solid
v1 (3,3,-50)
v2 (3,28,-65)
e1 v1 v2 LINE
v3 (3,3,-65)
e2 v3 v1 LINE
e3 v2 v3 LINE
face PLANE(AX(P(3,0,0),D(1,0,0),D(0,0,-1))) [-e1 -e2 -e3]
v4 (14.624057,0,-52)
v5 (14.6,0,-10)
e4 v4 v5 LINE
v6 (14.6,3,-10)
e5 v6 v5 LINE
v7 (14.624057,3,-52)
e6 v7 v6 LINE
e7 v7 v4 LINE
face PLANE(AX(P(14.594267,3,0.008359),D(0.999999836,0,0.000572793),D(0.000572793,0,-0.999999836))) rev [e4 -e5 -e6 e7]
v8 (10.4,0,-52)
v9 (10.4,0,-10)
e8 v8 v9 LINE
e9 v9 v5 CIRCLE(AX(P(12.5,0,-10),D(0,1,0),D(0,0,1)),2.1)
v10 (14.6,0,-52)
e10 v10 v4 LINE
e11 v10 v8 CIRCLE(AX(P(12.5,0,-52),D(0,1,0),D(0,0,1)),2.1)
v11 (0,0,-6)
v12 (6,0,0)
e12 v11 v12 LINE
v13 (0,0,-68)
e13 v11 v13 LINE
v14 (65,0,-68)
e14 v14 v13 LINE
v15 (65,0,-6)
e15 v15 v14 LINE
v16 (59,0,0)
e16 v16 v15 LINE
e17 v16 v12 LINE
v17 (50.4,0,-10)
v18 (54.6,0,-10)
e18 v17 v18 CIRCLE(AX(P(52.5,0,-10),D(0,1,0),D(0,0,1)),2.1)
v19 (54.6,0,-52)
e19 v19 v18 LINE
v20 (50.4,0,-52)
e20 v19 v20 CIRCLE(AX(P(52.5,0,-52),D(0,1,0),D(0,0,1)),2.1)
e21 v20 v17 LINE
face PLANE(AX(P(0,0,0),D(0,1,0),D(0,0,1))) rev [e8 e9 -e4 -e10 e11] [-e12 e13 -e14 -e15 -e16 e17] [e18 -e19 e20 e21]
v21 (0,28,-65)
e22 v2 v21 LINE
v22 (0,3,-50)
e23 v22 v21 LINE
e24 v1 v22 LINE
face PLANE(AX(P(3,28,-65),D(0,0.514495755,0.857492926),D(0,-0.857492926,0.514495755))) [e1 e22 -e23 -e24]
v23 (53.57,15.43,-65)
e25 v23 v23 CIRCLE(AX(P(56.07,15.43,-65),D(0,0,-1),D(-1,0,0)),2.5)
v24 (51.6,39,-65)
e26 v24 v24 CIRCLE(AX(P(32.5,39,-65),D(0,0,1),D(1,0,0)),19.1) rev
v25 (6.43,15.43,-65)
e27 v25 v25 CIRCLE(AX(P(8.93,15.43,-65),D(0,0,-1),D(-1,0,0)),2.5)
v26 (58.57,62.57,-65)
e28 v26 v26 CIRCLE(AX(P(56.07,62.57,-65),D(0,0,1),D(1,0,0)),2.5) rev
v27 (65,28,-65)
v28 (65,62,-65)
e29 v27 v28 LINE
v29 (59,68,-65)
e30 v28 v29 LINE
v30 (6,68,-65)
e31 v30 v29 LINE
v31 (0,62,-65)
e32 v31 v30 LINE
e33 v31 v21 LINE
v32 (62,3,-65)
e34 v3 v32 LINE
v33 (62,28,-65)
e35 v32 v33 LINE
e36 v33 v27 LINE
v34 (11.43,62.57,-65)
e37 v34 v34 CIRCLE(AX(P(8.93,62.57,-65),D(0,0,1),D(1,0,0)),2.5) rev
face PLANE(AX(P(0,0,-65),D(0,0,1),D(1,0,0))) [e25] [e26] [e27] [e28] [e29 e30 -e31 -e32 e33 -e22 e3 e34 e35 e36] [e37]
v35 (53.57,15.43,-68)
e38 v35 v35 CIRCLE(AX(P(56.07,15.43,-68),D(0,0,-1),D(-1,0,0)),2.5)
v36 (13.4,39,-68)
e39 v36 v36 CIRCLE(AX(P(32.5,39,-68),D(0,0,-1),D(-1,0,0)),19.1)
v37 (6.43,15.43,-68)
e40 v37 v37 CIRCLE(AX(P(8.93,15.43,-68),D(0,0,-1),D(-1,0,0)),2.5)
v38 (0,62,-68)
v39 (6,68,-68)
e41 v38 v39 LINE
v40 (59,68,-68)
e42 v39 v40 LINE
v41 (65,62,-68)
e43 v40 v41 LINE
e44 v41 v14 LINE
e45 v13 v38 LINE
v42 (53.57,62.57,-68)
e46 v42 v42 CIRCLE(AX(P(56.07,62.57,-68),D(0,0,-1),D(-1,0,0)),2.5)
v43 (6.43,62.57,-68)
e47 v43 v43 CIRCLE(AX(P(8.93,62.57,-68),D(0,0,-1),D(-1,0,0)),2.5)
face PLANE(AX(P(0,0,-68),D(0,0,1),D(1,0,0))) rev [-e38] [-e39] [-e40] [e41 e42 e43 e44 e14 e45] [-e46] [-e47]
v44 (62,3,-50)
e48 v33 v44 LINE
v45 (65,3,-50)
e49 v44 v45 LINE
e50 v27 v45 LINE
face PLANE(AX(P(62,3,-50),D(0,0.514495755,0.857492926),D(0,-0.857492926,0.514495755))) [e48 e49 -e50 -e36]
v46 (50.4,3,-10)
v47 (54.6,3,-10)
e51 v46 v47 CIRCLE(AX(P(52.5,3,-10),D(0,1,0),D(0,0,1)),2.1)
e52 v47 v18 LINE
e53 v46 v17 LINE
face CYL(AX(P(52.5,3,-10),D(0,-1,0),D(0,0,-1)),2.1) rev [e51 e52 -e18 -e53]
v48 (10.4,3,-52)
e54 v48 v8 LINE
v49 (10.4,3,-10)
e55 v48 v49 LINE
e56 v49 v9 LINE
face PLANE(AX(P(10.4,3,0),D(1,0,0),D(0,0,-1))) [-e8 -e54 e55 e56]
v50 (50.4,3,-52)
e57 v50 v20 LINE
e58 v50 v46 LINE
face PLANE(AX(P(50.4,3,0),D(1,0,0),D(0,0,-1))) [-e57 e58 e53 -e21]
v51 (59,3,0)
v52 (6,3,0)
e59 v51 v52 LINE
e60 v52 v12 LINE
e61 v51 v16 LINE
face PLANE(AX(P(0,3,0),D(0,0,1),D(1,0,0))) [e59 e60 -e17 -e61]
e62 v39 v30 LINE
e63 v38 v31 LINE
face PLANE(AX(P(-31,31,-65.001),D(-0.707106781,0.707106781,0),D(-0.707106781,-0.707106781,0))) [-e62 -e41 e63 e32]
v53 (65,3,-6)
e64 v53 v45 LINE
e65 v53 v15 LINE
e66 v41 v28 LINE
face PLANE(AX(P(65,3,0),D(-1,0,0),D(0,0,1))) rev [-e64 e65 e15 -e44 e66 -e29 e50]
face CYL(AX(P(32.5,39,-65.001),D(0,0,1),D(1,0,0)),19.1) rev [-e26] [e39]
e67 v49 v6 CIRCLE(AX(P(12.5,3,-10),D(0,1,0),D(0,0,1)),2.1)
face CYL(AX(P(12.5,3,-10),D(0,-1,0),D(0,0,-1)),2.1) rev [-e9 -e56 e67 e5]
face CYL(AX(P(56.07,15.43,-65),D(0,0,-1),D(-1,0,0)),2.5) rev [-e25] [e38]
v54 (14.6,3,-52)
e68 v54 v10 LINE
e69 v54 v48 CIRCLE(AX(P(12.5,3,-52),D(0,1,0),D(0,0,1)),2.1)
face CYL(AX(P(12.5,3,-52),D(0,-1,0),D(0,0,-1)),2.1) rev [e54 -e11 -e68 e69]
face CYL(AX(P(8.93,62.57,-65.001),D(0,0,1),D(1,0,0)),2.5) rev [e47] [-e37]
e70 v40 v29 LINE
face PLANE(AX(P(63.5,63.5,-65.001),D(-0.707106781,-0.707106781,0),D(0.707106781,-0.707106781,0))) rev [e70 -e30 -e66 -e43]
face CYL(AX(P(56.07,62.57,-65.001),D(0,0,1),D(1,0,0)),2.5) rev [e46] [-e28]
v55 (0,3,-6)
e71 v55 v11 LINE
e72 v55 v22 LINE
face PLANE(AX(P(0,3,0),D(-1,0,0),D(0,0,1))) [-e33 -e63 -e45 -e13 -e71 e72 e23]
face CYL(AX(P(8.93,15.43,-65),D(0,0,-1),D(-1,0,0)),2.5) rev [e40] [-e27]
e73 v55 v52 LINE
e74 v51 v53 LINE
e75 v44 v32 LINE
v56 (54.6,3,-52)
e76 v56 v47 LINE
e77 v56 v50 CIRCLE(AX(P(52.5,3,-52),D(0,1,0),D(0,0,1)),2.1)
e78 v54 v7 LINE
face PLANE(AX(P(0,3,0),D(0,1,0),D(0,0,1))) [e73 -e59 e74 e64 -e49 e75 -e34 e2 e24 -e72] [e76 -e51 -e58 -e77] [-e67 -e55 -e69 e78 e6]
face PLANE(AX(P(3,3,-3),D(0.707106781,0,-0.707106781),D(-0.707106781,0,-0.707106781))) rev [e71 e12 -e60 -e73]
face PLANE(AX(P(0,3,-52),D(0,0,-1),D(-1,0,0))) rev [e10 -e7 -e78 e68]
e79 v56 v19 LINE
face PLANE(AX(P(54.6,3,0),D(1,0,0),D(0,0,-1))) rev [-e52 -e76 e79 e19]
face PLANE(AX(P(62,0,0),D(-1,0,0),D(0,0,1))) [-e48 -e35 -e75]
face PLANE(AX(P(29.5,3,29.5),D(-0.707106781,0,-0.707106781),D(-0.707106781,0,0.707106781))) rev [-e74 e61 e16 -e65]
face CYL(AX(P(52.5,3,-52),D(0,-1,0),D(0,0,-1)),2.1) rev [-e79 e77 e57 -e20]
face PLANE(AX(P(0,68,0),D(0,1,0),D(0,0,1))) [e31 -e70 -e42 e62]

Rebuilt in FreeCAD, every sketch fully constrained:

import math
import FreeCAD as App
import Part
import Sketcher
from FreeCAD import Vector
Q = App.Units.Quantity

doc = App.newDocument("Part")
body = doc.addObject("PartDesign::Body", "Body")

# Sketch on XZ plane
sketch1 = doc.addObject("Sketcher::SketchObject", "Sketch")
body.addObject(sketch1)
sketch1.AttachmentSupport = (doc.XZ_Plane, [""])
sketch1.MapMode = "FlatFace"
sketch1.addGeometry(Part.LineSegment(Vector(59, 0, 0), Vector(65, -6, 0)), False)
sketch1.addGeometry(Part.LineSegment(Vector(65, -6, 0), Vector(65, -65, 0)), False)
sketch1.addGeometry(Part.LineSegment(Vector(65, -65, 0), Vector(0, -65, 0)), False)
sketch1.addGeometry(Part.LineSegment(Vector(0, -65, 0), Vector(0, -6, 0)), False)
sketch1.addGeometry(Part.LineSegment(Vector(0, -6, 0), Vector(6, 0, 0)), False)
sketch1.addGeometry(Part.LineSegment(Vector(6, 0, 0), Vector(59, 0, 0)), False)
sketch1.addGeometry(Part.ArcOfCircle(Part.Circle(Vector(12.5, -52, 0), Vector(0, 0, 1), 2.1), math.radians(180), math.radians(360)), False)
sketch1.addGeometry(Part.LineSegment(Vector(14.6, -52, 0), Vector(14.624, -52, 0)), False)
sketch1.addGeometry(Part.LineSegment(Vector(14.624, -52, 0), Vector(14.6, -10, 0)), False)
sketch1.addGeometry(Part.ArcOfCircle(Part.Circle(Vector(12.5, -10, 0), Vector(0, 0, 1), 2.1), math.radians(0), math.radians(180)), False)
sketch1.addGeometry(Part.LineSegment(Vector(10.4, -10, 0), Vector(10.4, -52, 0)), False)
sketch1.addGeometry(Part.LineSegment(Vector(54.6, -52, 0), Vector(54.6, -10, 0)), False)
sketch1.addGeometry(Part.ArcOfCircle(Part.Circle(Vector(52.5, -10, 0), Vector(0, 0, 1), 2.1), math.radians(0), math.radians(90)), False)
sketch1.addGeometry(Part.ArcOfCircle(Part.Circle(Vector(52.5, -10, 0), Vector(0, 0, 1), 2.1), math.radians(90), math.radians(180)), False)
sketch1.addGeometry(Part.LineSegment(Vector(50.4, -10, 0), Vector(50.4, -52, 0)), False)
sketch1.addGeometry(Part.ArcOfCircle(Part.Circle(Vector(52.5, -52, 0), Vector(0, 0, 1), 2.1), math.radians(180), math.radians(360)), False)
sketch1.addConstraint(Sketcher.Constraint("Coincident", 0, 2, 1, 1))
sketch1.addConstraint(Sketcher.Constraint("Coincident", 1, 2, 2, 1))
sketch1.addConstraint(Sketcher.Constraint("Coincident", 2, 2, 3, 1))
sketch1.addConstraint(Sketcher.Constraint("Coincident", 3, 2, 4, 1))
sketch1.addConstraint(Sketcher.Constraint("Coincident", 4, 2, 5, 1))
sketch1.addConstraint(Sketcher.Constraint("Coincident", 5, 2, 0, 1))
sketch1.addConstraint(Sketcher.Constraint("Coincident", 6, 2, 7, 1))
sketch1.addConstraint(Sketcher.Constraint("Coincident", 7, 2, 8, 1))
sketch1.addConstraint(Sketcher.Constraint("Coincident", 8, 2, 9, 1))
sketch1.addConstraint(Sketcher.Constraint("Tangent", 9, 2, 10, 1))
sketch1.addConstraint(Sketcher.Constraint("Tangent", 10, 2, 6, 1))
sketch1.addConstraint(Sketcher.Constraint("Tangent", 11, 2, 12, 1))
sketch1.addConstraint(Sketcher.Constraint("Tangent", 12, 2, 13, 1))
sketch1.addConstraint(Sketcher.Constraint("Tangent", 13, 2, 14, 1))
sketch1.addConstraint(Sketcher.Constraint("Tangent", 14, 2, 15, 1))
sketch1.addConstraint(Sketcher.Constraint("Tangent", 15, 2, 11, 1))
sketch1.addConstraint(Sketcher.Constraint("Vertical", 1))
sketch1.addConstraint(Sketcher.Constraint("Horizontal", 2))
sketch1.addConstraint(Sketcher.Constraint("Vertical", 3))
sketch1.addConstraint(Sketcher.Constraint("Horizontal", 5))
sketch1.addConstraint(Sketcher.Constraint("Horizontal", 7))
sketch1.addConstraint(Sketcher.Constraint("Vertical", 10))
sketch1.addConstraint(Sketcher.Constraint("Vertical", 11))
sketch1.addConstraint(Sketcher.Constraint("Vertical", 14))
sketch1.addConstraint(Sketcher.Constraint("Equal", 6, 9))
sketch1.addConstraint(Sketcher.Constraint("Equal", 9, 12))
sketch1.addConstraint(Sketcher.Constraint("Equal", 12, 13))
sketch1.addConstraint(Sketcher.Constraint("PointOnObject", 2, 2, -2))
sketch1.addConstraint(Sketcher.Constraint("PointOnObject", 4, 2, -1))
sketch1.addConstraint(Sketcher.Constraint("Perpendicular", 0, 4))
sketch1.addConstraint(Sketcher.Constraint("Horizontal", 9, 3, 12, 3))
sketch1.addConstraint(Sketcher.Constraint("Horizontal", 6, 3, 15, 3))
sketch1.addConstraint(Sketcher.Constraint("Horizontal", 0, 2, 3, 2))
sketch1.addConstraint(Sketcher.Constraint("Horizontal", 15, 3, 6, 2))
sketch1.addConstraint(Sketcher.Constraint("Horizontal", 13, 3, 8, 2))
sketch1.addConstraint(Sketcher.Constraint("Vertical", 15, 3, 12, 2))
sketch1.addConstraint(Sketcher.Constraint("Equal", 0, 4))
sketch1.addConstraint(Sketcher.Constraint("Radius", 6, Q("2.1 mm")))
sketch1.addConstraint(Sketcher.Constraint("DistanceX", 2, 2, 2, 1, Q("65 mm")))
sketch1.addConstraint(Sketcher.Constraint("DistanceX", 5, 1, 5, 2, Q("53 mm")))
sketch1.addConstraint(Sketcher.Constraint("DistanceY", 1, 2, 1, 1, Q("59 mm")))
sketch1.addConstraint(Sketcher.Constraint("DistanceY", 10, 2, 10, 1, Q("42 mm")))
sketch1.addConstraint(Sketcher.Constraint("DistanceY", 6, 3, -1, 1, Q("52 mm")))
sketch1.addConstraint(Sketcher.Constraint("DistanceX", 9, 3, 12, 3, Q("40 mm")))
sketch1.addConstraint(Sketcher.Constraint("DistanceX", -1, 1, 6, 3, Q("12.5 mm")))
sketch1.addConstraint(Sketcher.Constraint("DistanceX", 7, 1, 7, 2, Q("0.024057 mm")))
pad1 = doc.addObject("PartDesign::Pad", "Pad")
body.addObject(pad1)
pad1.Profile = sketch1
pad1.Length = 3
pad1.Reversed = True

# Sketch on XZ plane
sketch2 = doc.addObject("Sketcher::SketchObject", "Sketch001")
body.addObject(sketch2)
sketch2.AttachmentSupport = (doc.XZ_Plane, [""])
sketch2.MapMode = "FlatFace"
sketch2.AttachmentOffset = App.Placement(Vector(0, 0, -3), App.Rotation())
sketch2.addGeometry(Part.LineSegment(Vector(0, -65, 0), Vector(0, -62, 0)), False)
sketch2.addGeometry(Part.LineSegment(Vector(0, -62, 0), Vector(65, -62, 0)), False)
sketch2.addGeometry(Part.LineSegment(Vector(65, -62, 0), Vector(65, -65, 0)), False)
sketch2.addGeometry(Part.LineSegment(Vector(65, -65, 0), Vector(0, -65, 0)), False)
sketch2.addConstraint(Sketcher.Constraint("Coincident", 0, 2, 1, 1))
sketch2.addConstraint(Sketcher.Constraint("Coincident", 1, 2, 2, 1))
sketch2.addConstraint(Sketcher.Constraint("Coincident", 2, 2, 3, 1))
sketch2.addConstraint(Sketcher.Constraint("Coincident", 3, 2, 0, 1))
sketch2.addConstraint(Sketcher.Constraint("Vertical", 0))
sketch2.addConstraint(Sketcher.Constraint("Horizontal", 1))
sketch2.addConstraint(Sketcher.Constraint("Vertical", 2))
sketch2.addConstraint(Sketcher.Constraint("Horizontal", 3))
sketch2.addConstraint(Sketcher.Constraint("PointOnObject", 0, 2, -2))
sketch2.addConstraint(Sketcher.Constraint("DistanceX", 1, 1, 1, 2, Q("65 mm")))
sketch2.addConstraint(Sketcher.Constraint("DistanceY", 0, 1, 0, 2, Q("3 mm")))
sketch2.addConstraint(Sketcher.Constraint("DistanceY", 0, 2, -1, 1, Q("62 mm")))
pad2 = doc.addObject("PartDesign::Pad", "Pad001")
body.addObject(pad2)
pad2.Profile = sketch2
pad2.Length = 65
pad2.Reversed = True

# Sketch on XY plane
sketch3 = doc.addObject("Sketcher::SketchObject", "Sketch002")
body.addObject(sketch3)
sketch3.AttachmentSupport = (doc.XY_Plane, [""])
sketch3.MapMode = "FlatFace"
sketch3.AttachmentOffset = App.Placement(Vector(0, 0, -62), App.Rotation())
sketch3.addGeometry(Part.LineSegment(Vector(6, 68, 0), Vector(0, 68, 0)), False)
sketch3.addGeometry(Part.LineSegment(Vector(0, 68, 0), Vector(0, 62, 0)), False)
sketch3.addGeometry(Part.LineSegment(Vector(0, 62, 0), Vector(6, 68, 0)), False)
sketch3.addConstraint(Sketcher.Constraint("Coincident", 0, 2, 1, 1))
sketch3.addConstraint(Sketcher.Constraint("Coincident", 1, 2, 2, 1))
sketch3.addConstraint(Sketcher.Constraint("Coincident", 2, 2, 0, 1))
sketch3.addConstraint(Sketcher.Constraint("Horizontal", 0))
sketch3.addConstraint(Sketcher.Constraint("Vertical", 1))
sketch3.addConstraint(Sketcher.Constraint("PointOnObject", 0, 2, -2))
sketch3.addConstraint(Sketcher.Constraint("Equal", 0, 1))
sketch3.addConstraint(Sketcher.Constraint("DistanceX", 0, 2, 0, 1, Q("6 mm")))
sketch3.addConstraint(Sketcher.Constraint("DistanceY", -1, 1, 0, 2, Q("68 mm")))
pocket1 = doc.addObject("PartDesign::Pocket", "Pocket")
body.addObject(pocket1)
pocket1.Profile = sketch3
pocket1.Type = "UpToFirst"

# Sketch on XY plane
sketch4 = doc.addObject("Sketcher::SketchObject", "Sketch003")
body.addObject(sketch4)
sketch4.AttachmentSupport = (doc.XY_Plane, [""])
sketch4.MapMode = "FlatFace"
sketch4.AttachmentOffset = App.Placement(Vector(0, 0, -62), App.Rotation())
sketch4.addGeometry(Part.Circle(Vector(8.9, 15.4, 0), Vector(0, 0, 1), 2.5), False)
sketch4.addConstraint(Sketcher.Constraint("Diameter", 0, Q("5 mm")))
sketch4.addConstraint(Sketcher.Constraint("DistanceX", -1, 1, 0, 3, Q("8.93 mm")))
sketch4.addConstraint(Sketcher.Constraint("DistanceY", -1, 1, 0, 3, Q("15.43 mm")))
pocket2 = doc.addObject("PartDesign::Pocket", "Pocket001")
body.addObject(pocket2)
pocket2.Profile = sketch4
pocket2.Type = "UpToFirst"

# Sketch on XY plane
sketch5 = doc.addObject("Sketcher::SketchObject", "Sketch004")
body.addObject(sketch5)
sketch5.AttachmentSupport = (doc.XY_Plane, [""])
sketch5.MapMode = "FlatFace"
sketch5.AttachmentOffset = App.Placement(Vector(0, 0, -62), App.Rotation())
sketch5.addGeometry(Part.Circle(Vector(56.1, 15.4, 0), Vector(0, 0, 1), 2.5), False)
sketch5.addConstraint(Sketcher.Constraint("Diameter", 0, Q("5 mm")))
sketch5.addConstraint(Sketcher.Constraint("DistanceX", -1, 1, 0, 3, Q("56.07 mm")))
sketch5.addConstraint(Sketcher.Constraint("DistanceY", -1, 1, 0, 3, Q("15.43 mm")))
pocket3 = doc.addObject("PartDesign::Pocket", "Pocket002")
body.addObject(pocket3)
pocket3.Profile = sketch5
pocket3.Type = "UpToFirst"

# Sketch on XY plane
sketch6 = doc.addObject("Sketcher::SketchObject", "Sketch005")
body.addObject(sketch6)
sketch6.AttachmentSupport = (doc.XY_Plane, [""])
sketch6.MapMode = "FlatFace"
sketch6.AttachmentOffset = App.Placement(Vector(0, 0, -62), App.Rotation())
sketch6.addGeometry(Part.Circle(Vector(56.1, 62.6, 0), Vector(0, 0, 1), 2.5), False)
sketch6.addConstraint(Sketcher.Constraint("Diameter", 0, Q("5 mm")))
sketch6.addConstraint(Sketcher.Constraint("DistanceX", -1, 1, 0, 3, Q("56.07 mm")))
sketch6.addConstraint(Sketcher.Constraint("DistanceY", -1, 1, 0, 3, Q("62.57 mm")))
pocket4 = doc.addObject("PartDesign::Pocket", "Pocket003")
body.addObject(pocket4)
pocket4.Profile = sketch6
pocket4.Type = "UpToFirst"

# Sketch on XY plane
sketch7 = doc.addObject("Sketcher::SketchObject", "Sketch006")
body.addObject(sketch7)
sketch7.AttachmentSupport = (doc.XY_Plane, [""])
sketch7.MapMode = "FlatFace"
sketch7.AttachmentOffset = App.Placement(Vector(0, 0, -62), App.Rotation())
sketch7.addGeometry(Part.Circle(Vector(32, 39, 0), Vector(0, 0, 1), 19), False)
sketch7.addConstraint(Sketcher.Constraint("Diameter", 0, Q("38.2 mm")))
sketch7.addConstraint(Sketcher.Constraint("DistanceY", -1, 1, 0, 3, Q("39 mm")))
sketch7.addConstraint(Sketcher.Constraint("DistanceX", -1, 1, 0, 3, Q("32.5 mm")))
pocket5 = doc.addObject("PartDesign::Pocket", "Pocket004")
body.addObject(pocket5)
pocket5.Profile = sketch7
pocket5.Type = "UpToFirst"

# Sketch on XY plane
sketch8 = doc.addObject("Sketcher::SketchObject", "Sketch007")
body.addObject(sketch8)
sketch8.AttachmentSupport = (doc.XY_Plane, [""])
sketch8.MapMode = "FlatFace"
sketch8.AttachmentOffset = App.Placement(Vector(0, 0, -62), App.Rotation())
sketch8.addGeometry(Part.LineSegment(Vector(65, 68, 0), Vector(59, 68, 0)), False)
sketch8.addGeometry(Part.LineSegment(Vector(59, 68, 0), Vector(65, 62, 0)), False)
sketch8.addGeometry(Part.LineSegment(Vector(65, 62, 0), Vector(65, 68, 0)), False)
sketch8.addConstraint(Sketcher.Constraint("Coincident", 0, 2, 1, 1))
sketch8.addConstraint(Sketcher.Constraint("Coincident", 1, 2, 2, 1))
sketch8.addConstraint(Sketcher.Constraint("Coincident", 2, 2, 0, 1))
sketch8.addConstraint(Sketcher.Constraint("Horizontal", 0))
sketch8.addConstraint(Sketcher.Constraint("Vertical", 2))
sketch8.addConstraint(Sketcher.Constraint("Equal", 0, 2))
sketch8.addConstraint(Sketcher.Constraint("DistanceX", 0, 2, 0, 1, Q("6 mm")))
sketch8.addConstraint(Sketcher.Constraint("DistanceX", -1, 1, 0, 2, Q("59 mm")))
sketch8.addConstraint(Sketcher.Constraint("DistanceY", -1, 1, 0, 2, Q("68 mm")))
pocket6 = doc.addObject("PartDesign::Pocket", "Pocket005")
body.addObject(pocket6)
pocket6.Profile = sketch8
pocket6.Type = "UpToFirst"

# Sketch on XY plane
sketch9 = doc.addObject("Sketcher::SketchObject", "Sketch008")
body.addObject(sketch9)
sketch9.AttachmentSupport = (doc.XY_Plane, [""])
sketch9.MapMode = "FlatFace"
sketch9.AttachmentOffset = App.Placement(Vector(0, 0, -62), App.Rotation())
sketch9.addGeometry(Part.ArcOfCircle(Part.Circle(Vector(8.9, 62.6, 0), Vector(0, 0, 1), 2.5), math.radians(0), math.radians(267)), False)
sketch9.addGeometry(Part.ArcOfCircle(Part.Circle(Vector(8.9, 62.6, 0), Vector(0, 0, 1), 2.5), math.radians(-93), math.radians(0)), False)
sketch9.addConstraint(Sketcher.Constraint("Tangent", 0, 1, 1, 2))
sketch9.addConstraint(Sketcher.Constraint("Coincident", 1, 1, 0, 2))
sketch9.addConstraint(Sketcher.Constraint("Horizontal", 1, 3, 0, 1))
sketch9.addConstraint(Sketcher.Constraint("Radius", 0, Q("2.5 mm")))
sketch9.addConstraint(Sketcher.Constraint("DistanceX", -1, 1, 0, 3, Q("8.93 mm")))
sketch9.addConstraint(Sketcher.Constraint("DistanceY", -1, 1, 0, 3, Q("62.57 mm")))
sketch9.addConstraint(Sketcher.Constraint("DistanceX", -1, 1, 1, 1, Q("8.78354 mm")))
pocket7 = doc.addObject("PartDesign::Pocket", "Pocket006")
body.addObject(pocket7)
pocket7.Profile = sketch9
pocket7.Type = "UpToFirst"

# Sketch on XY plane
sketch10 = doc.addObject("Sketcher::SketchObject", "Sketch009")
body.addObject(sketch10)
sketch10.AttachmentSupport = (doc.XY_Plane, [""])
sketch10.MapMode = "FlatFace"
sketch10.AttachmentOffset = App.Placement(Vector(0, 0, -65), App.Rotation())
sketch10.addGeometry(Part.LineSegment(Vector(59, 68, 0), Vector(65, 62, 0)), False)
sketch10.addGeometry(Part.LineSegment(Vector(65, 62, 0), Vector(65, 0, 0)), False)
sketch10.addGeometry(Part.LineSegment(Vector(65, 0, 0), Vector(0, 0, 0)), False)
sketch10.addGeometry(Part.LineSegment(Vector(0, 0, 0), Vector(0, 62, 0)), False)
sketch10.addGeometry(Part.LineSegment(Vector(0, 62, 0), Vector(6, 68, 0)), False)
sketch10.addGeometry(Part.LineSegment(Vector(6, 68, 0), Vector(59, 68, 0)), False)
sketch10.addGeometry(Part.Circle(Vector(32.5, 39, 0), Vector(0, 0, 1), 19.1), False)
sketch10.addGeometry(Part.Circle(Vector(8.9, 62.6, 0), Vector(0, 0, 1), 2.5), False)
sketch10.addGeometry(Part.Circle(Vector(56.1, 62.6, 0), Vector(0, 0, 1), 2.5), False)
sketch10.addConstraint(Sketcher.Constraint("Coincident", 0, 2, 1, 1))
sketch10.addConstraint(Sketcher.Constraint("Coincident", 1, 2, 2, 1))
sketch10.addConstraint(Sketcher.Constraint("Coincident", 2, 2, 3, 1))
sketch10.addConstraint(Sketcher.Constraint("Coincident", 3, 2, 4, 1))
sketch10.addConstraint(Sketcher.Constraint("Coincident", 4, 2, 5, 1))
sketch10.addConstraint(Sketcher.Constraint("Coincident", 5, 2, 0, 1))
sketch10.addConstraint(Sketcher.Constraint("Vertical", 1))
sketch10.addConstraint(Sketcher.Constraint("Horizontal", 2))
sketch10.addConstraint(Sketcher.Constraint("Vertical", 3))
sketch10.addConstraint(Sketcher.Constraint("Horizontal", 5))
sketch10.addConstraint(Sketcher.Constraint("Coincident", 2, 2, -1, 1))
sketch10.addConstraint(Sketcher.Constraint("Equal", 7, 8))
sketch10.addConstraint(Sketcher.Constraint("Perpendicular", 0, 4))
sketch10.addConstraint(Sketcher.Constraint("Horizontal", 7, 3, 8, 3))
sketch10.addConstraint(Sketcher.Constraint("Horizontal", 0, 2, 3, 2))
sketch10.addConstraint(Sketcher.Constraint("Equal", 0, 4))
sketch10.addConstraint(Sketcher.Constraint("Diameter", 7, Q("5 mm")))
sketch10.addConstraint(Sketcher.Constraint("Diameter", 6, Q("38.2 mm")))
sketch10.addConstraint(Sketcher.Constraint("DistanceX", 2, 2, 2, 1, Q("65 mm")))
sketch10.addConstraint(Sketcher.Constraint("DistanceX", 5, 1, 5, 2, Q("53 mm")))
sketch10.addConstraint(Sketcher.Constraint("DistanceY", 1, 2, 1, 1, Q("62 mm")))
sketch10.addConstraint(Sketcher.Constraint("DistanceY", -1, 1, 6, 3, Q("39 mm")))
sketch10.addConstraint(Sketcher.Constraint("DistanceX", -1, 1, 6, 3, Q("32.5 mm")))
sketch10.addConstraint(Sketcher.Constraint("DistanceX", -1, 1, 7, 3, Q("8.93 mm")))
sketch10.addConstraint(Sketcher.Constraint("DistanceY", -1, 1, 7, 3, Q("62.57 mm")))
sketch10.addConstraint(Sketcher.Constraint("DistanceX", -1, 1, 8, 3, Q("56.07 mm")))
pad3 = doc.addObject("PartDesign::Pad", "Pad002")
body.addObject(pad3)
pad3.Profile = sketch10
pad3.Length = 3
pad3.Reversed = True

# Sketch on XY plane
sketch11 = doc.addObject("Sketcher::SketchObject", "Sketch010")
body.addObject(sketch11)
sketch11.AttachmentSupport = (doc.XY_Plane, [""])
sketch11.MapMode = "FlatFace"
sketch11.AttachmentOffset = App.Placement(Vector(0, 0, -62), App.Rotation())
sketch11.addGeometry(Part.LineSegment(Vector(0, 69, 0), Vector(0, 3, 0)), False)
sketch11.addGeometry(Part.LineSegment(Vector(0, 3, 0), Vector(65, 3, 0)), False)
sketch11.addGeometry(Part.LineSegment(Vector(65, 3, 0), Vector(65, 69, 0)), False)
sketch11.addGeometry(Part.LineSegment(Vector(65, 69, 0), Vector(0, 69, 0)), False)
sketch11.addConstraint(Sketcher.Constraint("Coincident", 0, 2, 1, 1))
sketch11.addConstraint(Sketcher.Constraint("Coincident", 1, 2, 2, 1))
sketch11.addConstraint(Sketcher.Constraint("Coincident", 2, 2, 3, 1))
sketch11.addConstraint(Sketcher.Constraint("Coincident", 3, 2, 0, 1))
sketch11.addConstraint(Sketcher.Constraint("Vertical", 0))
sketch11.addConstraint(Sketcher.Constraint("Horizontal", 1))
sketch11.addConstraint(Sketcher.Constraint("Vertical", 2))
sketch11.addConstraint(Sketcher.Constraint("Horizontal", 3))
sketch11.addConstraint(Sketcher.Constraint("PointOnObject", 0, 2, -2))
sketch11.addConstraint(Sketcher.Constraint("DistanceX", 1, 1, 1, 2, Q("65 mm")))
sketch11.addConstraint(Sketcher.Constraint("DistanceY", -1, 1, 0, 2, Q("3 mm")))
sketch11.addConstraint(Sketcher.Constraint("DistanceY", 0, 2, 0, 1, Q("66.483874 mm")))
pocket8 = doc.addObject("PartDesign::Pocket", "Pocket007")
body.addObject(pocket8)
pocket8.Profile = sketch11
pocket8.Length = 3

# Sketch on XY plane
sketch12 = doc.addObject("Sketcher::SketchObject", "Sketch011")
body.addObject(sketch12)
sketch12.AttachmentSupport = (doc.XY_Plane, [""])
sketch12.MapMode = "FlatFace"
sketch12.AttachmentOffset = App.Placement(Vector(0, 0, -68), App.Rotation())
sketch12.addGeometry(Part.Circle(Vector(56.1, 15.4, 0), Vector(0, 0, 1), 2.5), False)
sketch12.addGeometry(Part.Circle(Vector(8.9, 15.4, 0), Vector(0, 0, 1), 2.5), False)
sketch12.addConstraint(Sketcher.Constraint("Equal", 0, 1))
sketch12.addConstraint(Sketcher.Constraint("Horizontal", 0, 3, 1, 3))
sketch12.addConstraint(Sketcher.Constraint("Diameter", 0, Q("5 mm")))
sketch12.addConstraint(Sketcher.Constraint("DistanceX", -1, 1, 0, 3, Q("56.07 mm")))
sketch12.addConstraint(Sketcher.Constraint("DistanceY", -1, 1, 0, 3, Q("15.43 mm")))
sketch12.addConstraint(Sketcher.Constraint("DistanceX", -1, 1, 1, 3, Q("8.93 mm")))
pocket9 = doc.addObject("PartDesign::Pocket", "Pocket008")
body.addObject(pocket9)
pocket9.Profile = sketch12
pocket9.Length = 3
pocket9.Reversed = True

# Sketch on YZ plane
sketch13 = doc.addObject("Sketcher::SketchObject", "Sketch012")
body.addObject(sketch13)
sketch13.AttachmentSupport = (doc.YZ_Plane, [""])
sketch13.MapMode = "FlatFace"
sketch13.addGeometry(Part.LineSegment(Vector(3, -65, 0), Vector(3, -50, 0)), False)
sketch13.addGeometry(Part.LineSegment(Vector(3, -50, 0), Vector(28, -65, 0)), False)
sketch13.addGeometry(Part.LineSegment(Vector(28, -65, 0), Vector(3, -65, 0)), False)
sketch13.addConstraint(Sketcher.Constraint("Coincident", 0, 2, 1, 1))
sketch13.addConstraint(Sketcher.Constraint("Coincident", 1, 2, 2, 1))
sketch13.addConstraint(Sketcher.Constraint("Coincident", 2, 2, 0, 1))
sketch13.addConstraint(Sketcher.Constraint("Vertical", 0))
sketch13.addConstraint(Sketcher.Constraint("Horizontal", 2))
sketch13.addConstraint(Sketcher.Constraint("DistanceX", 2, 2, 2, 1, Q("25 mm")))
sketch13.addConstraint(Sketcher.Constraint("DistanceY", 0, 1, 0, 2, Q("15 mm")))
sketch13.addConstraint(Sketcher.Constraint("DistanceX", -1, 1, 0, 2, Q("3 mm")))
sketch13.addConstraint(Sketcher.Constraint("DistanceY", 0, 2, -1, 1, Q("50 mm")))
pad4 = doc.addObject("PartDesign::Pad", "Pad003")
body.addObject(pad4)
pad4.Profile = sketch13
pad4.Length = 3

# Sketch on YZ plane
sketch14 = doc.addObject("Sketcher::SketchObject", "Sketch013")
body.addObject(sketch14)
sketch14.AttachmentSupport = (doc.YZ_Plane, [""])
sketch14.MapMode = "FlatFace"
sketch14.AttachmentOffset = App.Placement(Vector(0, 0, 65), App.Rotation())
sketch14.addGeometry(Part.LineSegment(Vector(3, -50, 0), Vector(3, -65, 0)), False)
sketch14.addGeometry(Part.LineSegment(Vector(3, -65, 0), Vector(28, -65, 0)), False)
sketch14.addGeometry(Part.LineSegment(Vector(28, -65, 0), Vector(3, -50, 0)), False)
sketch14.addConstraint(Sketcher.Constraint("Coincident", 0, 2, 1, 1))
sketch14.addConstraint(Sketcher.Constraint("Coincident", 1, 2, 2, 1))
sketch14.addConstraint(Sketcher.Constraint("Coincident", 2, 2, 0, 1))
sketch14.addConstraint(Sketcher.Constraint("Vertical", 0))
sketch14.addConstraint(Sketcher.Constraint("Horizontal", 1))
sketch14.addConstraint(Sketcher.Constraint("DistanceX", 1, 1, 1, 2, Q("25 mm")))
sketch14.addConstraint(Sketcher.Constraint("DistanceY", 0, 2, 0, 1, Q("15 mm")))
sketch14.addConstraint(Sketcher.Constraint("DistanceX", -1, 1, 0, 2, Q("3 mm")))
sketch14.addConstraint(Sketcher.Constraint("DistanceY", 0, 2, -1, 1, Q("65 mm")))
pad5 = doc.addObject("PartDesign::Pad", "Pad004")
body.addObject(pad5)
pad5.Profile = sketch14
pad5.Length = 3
pad5.Reversed = True

doc.recompute()
